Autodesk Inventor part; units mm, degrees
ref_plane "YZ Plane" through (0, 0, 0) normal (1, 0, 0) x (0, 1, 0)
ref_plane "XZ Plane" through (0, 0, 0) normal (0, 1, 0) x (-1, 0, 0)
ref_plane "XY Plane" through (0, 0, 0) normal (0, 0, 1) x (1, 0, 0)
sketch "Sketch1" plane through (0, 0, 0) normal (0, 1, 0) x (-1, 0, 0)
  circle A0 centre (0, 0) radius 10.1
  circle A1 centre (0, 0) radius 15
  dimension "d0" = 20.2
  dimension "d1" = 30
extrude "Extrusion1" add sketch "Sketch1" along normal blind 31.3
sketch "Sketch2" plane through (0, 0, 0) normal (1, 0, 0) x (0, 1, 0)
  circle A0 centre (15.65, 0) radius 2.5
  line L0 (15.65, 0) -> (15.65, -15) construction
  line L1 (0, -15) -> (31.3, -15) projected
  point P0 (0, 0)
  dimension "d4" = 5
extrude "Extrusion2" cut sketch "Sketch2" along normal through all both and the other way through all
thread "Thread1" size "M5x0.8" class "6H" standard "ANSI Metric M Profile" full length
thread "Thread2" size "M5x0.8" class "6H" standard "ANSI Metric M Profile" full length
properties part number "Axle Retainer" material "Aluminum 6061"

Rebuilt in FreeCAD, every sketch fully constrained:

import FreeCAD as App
import Part
import Sketcher
from FreeCAD import Vector
Q = App.Units.Quantity

doc = App.newDocument("Part")
body = doc.addObject("PartDesign::Body", "Body")

sketch1 = body.newObject("Sketcher::SketchObject", "Sketch")
sketch1.AttachmentSupport = (doc.getObject("XZ_Plane"), [""])
sketch1.MapMode = "FlatFace"
sketch1.addGeometry(Part.Circle(Vector(0, 0, 0), Vector(0, 0, 1), 15), False)
sketch1.addGeometry(Part.Circle(Vector(0, 0, 0), Vector(0, 0, 1), 10), False)
sketch1.addConstraint(Sketcher.Constraint("Coincident", 0, 3, -1, 1))
sketch1.addConstraint(Sketcher.Constraint("Coincident", 1, 3, -1, 1))
sketch1.addConstraint(Sketcher.Constraint("Diameter", 0, Q("30 mm")))
sketch1.addConstraint(Sketcher.Constraint("Diameter", 1, Q("20.2 mm")))
pad1 = body.newObject("PartDesign::Pad", "Pad")
pad1.Profile = sketch1
pad1.Length = 31.3
pad1.Reversed = True

sketch2 = body.newObject("Sketcher::SketchObject", "Sketch001")
sketch2.AttachmentSupport = (doc.getObject("YZ_Plane"), [""])
sketch2.MapMode = "FlatFace"
sketch2.addGeometry(Part.Circle(Vector(15.7, 0, 0), Vector(0, 0, 1), 2.5), False)
sketch2.addConstraint(Sketcher.Constraint("PointOnObject", 0, 3, -1))
sketch2.addConstraint(Sketcher.Constraint("Diameter", 0, Q("5 mm")))
sketch2.addConstraint(Sketcher.Constraint("DistanceX", -1, 1, 0, 3, Q("15.65 mm")))
pocket1 = body.newObject("PartDesign::Pocket", "Pocket")
pocket1.Profile = sketch2
pocket1.Type = "ThroughAll"
pocket1.Midplane = True

doc.recompute()
